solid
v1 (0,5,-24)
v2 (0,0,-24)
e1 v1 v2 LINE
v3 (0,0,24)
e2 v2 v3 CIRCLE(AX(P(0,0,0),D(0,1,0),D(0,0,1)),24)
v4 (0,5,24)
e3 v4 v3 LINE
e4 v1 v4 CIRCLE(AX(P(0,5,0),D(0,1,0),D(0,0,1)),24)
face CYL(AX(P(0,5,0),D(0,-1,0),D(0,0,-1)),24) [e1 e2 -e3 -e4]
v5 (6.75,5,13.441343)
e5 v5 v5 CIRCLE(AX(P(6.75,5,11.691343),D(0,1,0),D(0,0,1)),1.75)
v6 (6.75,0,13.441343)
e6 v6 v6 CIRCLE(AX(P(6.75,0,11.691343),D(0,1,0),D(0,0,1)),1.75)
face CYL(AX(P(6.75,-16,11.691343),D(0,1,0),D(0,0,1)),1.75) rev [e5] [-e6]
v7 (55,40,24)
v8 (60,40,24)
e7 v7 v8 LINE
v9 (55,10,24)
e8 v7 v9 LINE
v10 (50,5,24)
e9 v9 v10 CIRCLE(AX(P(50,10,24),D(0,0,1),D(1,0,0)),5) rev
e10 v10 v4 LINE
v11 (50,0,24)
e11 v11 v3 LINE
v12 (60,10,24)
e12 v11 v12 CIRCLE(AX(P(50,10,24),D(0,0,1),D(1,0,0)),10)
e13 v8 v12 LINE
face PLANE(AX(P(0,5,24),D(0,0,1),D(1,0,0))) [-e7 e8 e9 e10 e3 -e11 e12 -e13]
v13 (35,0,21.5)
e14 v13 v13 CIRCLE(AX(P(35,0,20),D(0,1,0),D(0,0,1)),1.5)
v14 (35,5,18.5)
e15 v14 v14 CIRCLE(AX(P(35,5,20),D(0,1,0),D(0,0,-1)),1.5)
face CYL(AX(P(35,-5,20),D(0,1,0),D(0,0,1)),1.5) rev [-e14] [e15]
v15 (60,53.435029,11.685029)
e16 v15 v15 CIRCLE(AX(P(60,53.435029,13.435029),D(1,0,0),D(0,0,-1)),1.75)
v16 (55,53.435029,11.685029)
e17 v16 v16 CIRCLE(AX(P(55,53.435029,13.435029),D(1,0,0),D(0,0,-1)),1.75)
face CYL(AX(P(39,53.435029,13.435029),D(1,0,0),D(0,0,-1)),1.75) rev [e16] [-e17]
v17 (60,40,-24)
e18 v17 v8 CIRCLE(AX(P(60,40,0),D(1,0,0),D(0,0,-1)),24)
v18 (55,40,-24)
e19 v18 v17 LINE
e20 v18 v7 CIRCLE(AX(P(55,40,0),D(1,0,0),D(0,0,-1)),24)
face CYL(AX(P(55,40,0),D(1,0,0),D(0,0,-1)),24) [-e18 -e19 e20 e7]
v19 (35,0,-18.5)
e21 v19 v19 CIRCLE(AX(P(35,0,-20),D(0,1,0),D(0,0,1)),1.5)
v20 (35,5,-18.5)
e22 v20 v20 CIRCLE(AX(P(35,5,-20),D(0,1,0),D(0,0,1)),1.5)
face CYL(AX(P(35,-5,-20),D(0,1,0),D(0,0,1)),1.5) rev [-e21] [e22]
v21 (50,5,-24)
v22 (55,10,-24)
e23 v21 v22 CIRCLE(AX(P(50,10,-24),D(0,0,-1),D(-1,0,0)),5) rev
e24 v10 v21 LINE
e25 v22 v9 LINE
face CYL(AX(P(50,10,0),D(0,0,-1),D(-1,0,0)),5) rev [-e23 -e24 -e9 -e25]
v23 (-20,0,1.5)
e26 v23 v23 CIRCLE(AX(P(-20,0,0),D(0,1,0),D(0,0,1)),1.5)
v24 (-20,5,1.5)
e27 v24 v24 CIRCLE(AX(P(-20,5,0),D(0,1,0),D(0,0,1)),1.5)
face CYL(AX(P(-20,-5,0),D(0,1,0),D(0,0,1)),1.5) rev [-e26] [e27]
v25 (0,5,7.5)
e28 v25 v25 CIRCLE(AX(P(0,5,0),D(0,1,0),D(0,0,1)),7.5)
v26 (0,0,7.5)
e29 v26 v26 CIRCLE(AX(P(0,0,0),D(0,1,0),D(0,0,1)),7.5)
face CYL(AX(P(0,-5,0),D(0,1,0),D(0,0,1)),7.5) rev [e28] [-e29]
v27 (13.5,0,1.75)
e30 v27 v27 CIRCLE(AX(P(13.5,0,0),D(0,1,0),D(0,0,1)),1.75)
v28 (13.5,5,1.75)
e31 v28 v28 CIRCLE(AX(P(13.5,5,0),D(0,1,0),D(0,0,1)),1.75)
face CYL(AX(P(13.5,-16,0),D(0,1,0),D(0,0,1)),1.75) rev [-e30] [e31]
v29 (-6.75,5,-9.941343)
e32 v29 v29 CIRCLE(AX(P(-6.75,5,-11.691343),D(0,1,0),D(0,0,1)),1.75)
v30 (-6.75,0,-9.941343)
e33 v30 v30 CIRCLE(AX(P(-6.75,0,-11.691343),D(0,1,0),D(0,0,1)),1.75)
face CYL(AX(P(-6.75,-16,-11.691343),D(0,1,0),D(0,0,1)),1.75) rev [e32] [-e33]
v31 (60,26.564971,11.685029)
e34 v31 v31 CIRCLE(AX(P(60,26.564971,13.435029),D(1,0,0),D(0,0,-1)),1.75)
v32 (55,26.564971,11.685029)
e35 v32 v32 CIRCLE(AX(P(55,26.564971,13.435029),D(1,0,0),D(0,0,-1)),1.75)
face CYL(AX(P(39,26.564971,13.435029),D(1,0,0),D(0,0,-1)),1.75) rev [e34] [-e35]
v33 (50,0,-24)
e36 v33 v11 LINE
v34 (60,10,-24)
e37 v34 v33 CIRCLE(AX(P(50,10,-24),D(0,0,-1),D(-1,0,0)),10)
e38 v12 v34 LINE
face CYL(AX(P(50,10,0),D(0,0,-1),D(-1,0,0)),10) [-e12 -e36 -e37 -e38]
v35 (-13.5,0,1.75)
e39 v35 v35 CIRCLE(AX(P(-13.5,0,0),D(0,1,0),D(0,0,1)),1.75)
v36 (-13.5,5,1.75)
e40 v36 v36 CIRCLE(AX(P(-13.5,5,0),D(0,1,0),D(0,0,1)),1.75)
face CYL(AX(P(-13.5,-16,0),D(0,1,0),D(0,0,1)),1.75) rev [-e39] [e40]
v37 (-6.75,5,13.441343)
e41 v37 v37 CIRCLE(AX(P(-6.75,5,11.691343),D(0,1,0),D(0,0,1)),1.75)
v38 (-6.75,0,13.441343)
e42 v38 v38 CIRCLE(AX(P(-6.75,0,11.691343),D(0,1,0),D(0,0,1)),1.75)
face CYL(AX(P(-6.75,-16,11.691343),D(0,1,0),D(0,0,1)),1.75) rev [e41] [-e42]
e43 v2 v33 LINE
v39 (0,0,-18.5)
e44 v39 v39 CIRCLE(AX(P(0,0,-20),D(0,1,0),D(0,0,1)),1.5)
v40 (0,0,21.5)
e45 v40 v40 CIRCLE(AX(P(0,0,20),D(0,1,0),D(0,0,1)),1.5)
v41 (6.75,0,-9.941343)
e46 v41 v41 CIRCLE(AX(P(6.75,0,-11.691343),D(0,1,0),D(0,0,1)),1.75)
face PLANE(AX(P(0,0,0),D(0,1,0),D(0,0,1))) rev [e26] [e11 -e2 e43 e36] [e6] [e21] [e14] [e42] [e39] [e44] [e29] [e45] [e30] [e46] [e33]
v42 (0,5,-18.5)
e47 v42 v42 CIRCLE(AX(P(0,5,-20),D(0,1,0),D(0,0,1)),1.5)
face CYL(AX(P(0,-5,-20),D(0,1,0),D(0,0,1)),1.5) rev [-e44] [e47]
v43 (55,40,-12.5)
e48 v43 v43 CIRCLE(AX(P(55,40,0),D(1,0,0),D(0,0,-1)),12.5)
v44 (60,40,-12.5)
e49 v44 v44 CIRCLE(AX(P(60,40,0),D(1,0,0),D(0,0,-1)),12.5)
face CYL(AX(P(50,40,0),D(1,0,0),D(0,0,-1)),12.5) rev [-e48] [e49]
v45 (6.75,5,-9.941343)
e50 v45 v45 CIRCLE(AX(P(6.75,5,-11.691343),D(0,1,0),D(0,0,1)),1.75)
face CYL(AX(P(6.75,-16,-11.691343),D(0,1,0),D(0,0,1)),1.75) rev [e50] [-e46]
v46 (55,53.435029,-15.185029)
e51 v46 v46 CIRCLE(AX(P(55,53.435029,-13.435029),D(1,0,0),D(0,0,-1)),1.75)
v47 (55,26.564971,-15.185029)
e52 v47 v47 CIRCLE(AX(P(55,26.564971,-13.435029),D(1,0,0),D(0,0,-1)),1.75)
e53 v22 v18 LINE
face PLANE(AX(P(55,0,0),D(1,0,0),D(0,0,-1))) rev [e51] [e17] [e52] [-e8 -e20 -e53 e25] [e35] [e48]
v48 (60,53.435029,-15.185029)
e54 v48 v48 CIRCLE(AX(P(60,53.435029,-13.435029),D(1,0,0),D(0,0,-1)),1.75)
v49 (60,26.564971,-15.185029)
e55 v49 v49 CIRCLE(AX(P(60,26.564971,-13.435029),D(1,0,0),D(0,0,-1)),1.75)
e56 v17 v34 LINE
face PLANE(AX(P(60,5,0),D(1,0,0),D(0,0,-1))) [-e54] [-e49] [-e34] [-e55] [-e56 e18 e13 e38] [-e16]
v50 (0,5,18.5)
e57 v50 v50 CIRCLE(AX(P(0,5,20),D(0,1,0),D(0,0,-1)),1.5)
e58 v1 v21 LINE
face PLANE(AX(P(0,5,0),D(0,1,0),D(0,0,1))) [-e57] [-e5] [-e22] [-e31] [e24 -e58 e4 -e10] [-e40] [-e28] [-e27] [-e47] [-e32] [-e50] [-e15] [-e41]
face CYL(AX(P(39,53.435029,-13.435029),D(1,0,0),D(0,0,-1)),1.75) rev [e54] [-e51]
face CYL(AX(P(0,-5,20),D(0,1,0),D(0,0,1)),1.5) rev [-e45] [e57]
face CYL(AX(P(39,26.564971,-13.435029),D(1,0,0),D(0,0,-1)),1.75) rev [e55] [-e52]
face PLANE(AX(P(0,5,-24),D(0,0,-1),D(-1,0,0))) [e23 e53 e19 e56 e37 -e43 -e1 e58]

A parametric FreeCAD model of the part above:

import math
import FreeCAD as App
import Part
import Sketcher

V = App.Vector
Q = App.Units.Quantity


def edges_at(feature, points):
    """Names of the edges that pass closest to the given points."""
    edges = feature.Shape.Edges
    near = lambda p: min(range(len(edges)), key=lambda i: edges[i].distToShape(Part.Vertex(*p))[0])
    return sorted({f"Edge{near(p) + 1}" for p in points})

doc = App.newDocument("Part")
params = doc.addObject("Spreadsheet::Sheet", "Params")
for row, (alias, value) in enumerate([
    ("sketch1_radius", "24 mm"),
    ("sketch1_width", "60 mm"),
    ("pad1_length", "5 mm"),
    ("sketch2_radius", "24 mm"),
    ("sketch2_width", "40 mm"),
    ("pad2_length", "5 mm"),
    ("sketch3_diameter", "3.5 mm"),
    ("pocket1_length", "21 mm"),
    ("sketch4_diameter", "3.5 mm"),
    ("pocket2_length", "21 mm"),
    ("fillet_radius", "5 mm"),
    ("fillet2_radius", "10 mm"),
    ("sketch5_diameter", "3 mm"),
    ("pocket3_length", "10 mm"),
    ("sketch6_diameter", "15 mm"),
    ("pocket4_length", "10 mm"),
    ("sketch7_diameter", "25 mm"),
    ("pocket5_length", "10 mm"),
], start=1):
    params.set(f"A{row}", alias)
    params.set(f"B{row}", "=" + value)
    params.setAlias(f"B{row}", alias)

body = doc.addObject("PartDesign::Body", "Body")

# Sketch on XZ plane
sketch1 = body.newObject("Sketcher::SketchObject", "Sketch")
sketch1.AttachmentSupport = (doc.getObject("XZ_Plane"), [""])
sketch1.MapMode = "FlatFace"
sketch1.addGeometry([
    Part.ArcOfCircle(Part.Circle(V(0, 0, 0), V(0, 0, 1), 24), math.radians(90), math.radians(270)),
    Part.LineSegment(V(0, 24, 0), V(60, 24, 0)),
    Part.LineSegment(V(60, 24, 0), V(60, -24, 0)),
    Part.LineSegment(V(60, -24, 0), V(0, -24, 0)),
], False)
sketch1.addConstraint([
    Sketcher.Constraint("Tangent", 0, 1, 1, 1),
    Sketcher.Constraint("Coincident", 1, 2, 2, 1),
    Sketcher.Constraint("Coincident", 2, 2, 3, 1),
    Sketcher.Constraint("Tangent", 3, 2, 0, 2),
    Sketcher.Constraint("Horizontal", 1),
    Sketcher.Constraint("Vertical", 2),
    Sketcher.Constraint("Horizontal", 3),
    Sketcher.Constraint("Coincident", 0, 3, -1, 1),
    Sketcher.Constraint("Radius", 0, Q("24 mm")),
    Sketcher.Constraint("DistanceX", 1, 1, 1, 2, Q("60 mm")),
])
sketch1.setExpression("Constraints[8]", "Params.sketch1_radius")
sketch1.setExpression("Constraints[9]", "Params.sketch1_width")
pad1 = body.newObject("PartDesign::Pad", "Pad")
pad1.Profile = sketch1
pad1.setExpression("Length", "Params.pad1_length")
pad1.Reversed = True

# Sketch on YZ plane
sketch2 = body.newObject("Sketcher::SketchObject", "Sketch001")
sketch2.AttachmentSupport = (doc.getObject("YZ_Plane"), [""])
sketch2.MapMode = "FlatFace"
sketch2.AttachmentOffset = App.Placement(V(0, 0, 60), App.Rotation())
sketch2.addGeometry([
    Part.ArcOfCircle(Part.Circle(V(40, 0, 0), V(0, 0, 1), 24), math.radians(-90), math.radians(90)),
    Part.LineSegment(V(40, 24, 0), V(0, 24, 0)),
    Part.LineSegment(V(0, 24, 0), V(0, -24, 0)),
    Part.LineSegment(V(0, -24, 0), V(40, -24, 0)),
], False)
sketch2.addConstraint([
    Sketcher.Constraint("Tangent", 0, 2, 1, 1),
    Sketcher.Constraint("Coincident", 1, 2, 2, 1),
    Sketcher.Constraint("Coincident", 2, 2, 3, 1),
    Sketcher.Constraint("Tangent", 3, 2, 0, 1),
    Sketcher.Constraint("Horizontal", 1),
    Sketcher.Constraint("Vertical", 2),
    Sketcher.Constraint("Horizontal", 3),
    Sketcher.Constraint("Symmetric", 1, 2, 2, 2, -1, 1),
    Sketcher.Constraint("Radius", 0, Q("24 mm")),
    Sketcher.Constraint("DistanceX", 1, 2, 1, 1, Q("40 mm")),
])
sketch2.setExpression("Constraints[8]", "Params.sketch2_radius")
sketch2.setExpression("Constraints[9]", "Params.sketch2_width")
pad2 = body.newObject("PartDesign::Pad", "Pad001")
pad2.Profile = sketch2
pad2.setExpression("Length", "Params.pad2_length")
pad2.Reversed = True

# Sketch on XZ plane
sketch3 = body.newObject("Sketcher::SketchObject", "Sketch002")
sketch3.AttachmentSupport = (doc.getObject("XZ_Plane"), [""])
sketch3.MapMode = "FlatFace"
sketch3.AttachmentOffset = App.Placement(V(0, 0, -5), App.Rotation())
sketch3.addGeometry([
    Part.Circle(V(-13.5, 0, 0), V(0, 0, 1), 1.8),  # 0
    Part.Circle(V(-6.8, -11.7, 0), V(0, 0, 1), 1.8),  # 1
    Part.Circle(V(6.8, -11.7, 0), V(0, 0, 1), 1.8),  # 2
    Part.Circle(V(13.5, 0, 0), V(0, 0, 1), 1.8),  # 3
    Part.Circle(V(6.8, 11.7, 0), V(0, 0, 1), 1.8),  # 4
    Part.Circle(V(-6.8, 11.7, 0), V(0, 0, 1), 1.8),  # 5
], False)
sketch3.addConstraint([
    Sketcher.Constraint("Equal", 0, 1),
    Sketcher.Constraint("Equal", 1, 2),
    Sketcher.Constraint("Equal", 2, 3),
    Sketcher.Constraint("Equal", 3, 4),
    Sketcher.Constraint("Equal", 4, 5),
    Sketcher.Constraint("Symmetric", 0, 3, 3, 3, -1, 1),
    Sketcher.Constraint("Symmetric", 1, 3, 4, 3, -1, 1),
    Sketcher.Constraint("Symmetric", 2, 3, 5, 3, -1, 1),
    Sketcher.Constraint("Symmetric", 1, 3, 2, 3, -2),
    Sketcher.Constraint("PointOnObject", 0, 3, -1),
    Sketcher.Constraint("Diameter", 0, Q("3.5 mm")),
    Sketcher.Constraint("DistanceX", 0, 3, 3, 3, Q("27 mm")),
    Sketcher.Constraint("DistanceX", 1, 3, 2, 3, Q("13.5 mm")),
    Sketcher.Constraint("DistanceY", 1, 3, -1, 1, Q("11.691343 mm")),
])
sketch3.setExpression("Constraints[10]", "Params.sketch3_diameter")
pocket1 = body.newObject("PartDesign::Pocket", "Pocket")
pocket1.Profile = sketch3
pocket1.setExpression("Length", "Params.pocket1_length")
pocket1.Reversed = True

# Sketch on YZ plane
sketch4 = body.newObject("Sketcher::SketchObject", "Sketch003")
sketch4.AttachmentSupport = (doc.getObject("YZ_Plane"), [""])
sketch4.MapMode = "FlatFace"
sketch4.AttachmentOffset = App.Placement(V(0, 0, 60), App.Rotation())
sketch4.addGeometry([
    Part.Circle(V(53.4, 13.4, 0), V(0, 0, 1), 1.8),
    Part.Circle(V(53.4, -13.4, 0), V(0, 0, 1), 1.8),
    Part.Circle(V(26.6, -13.4, 0), V(0, 0, 1), 1.8),
    Part.Circle(V(26.6, 13.4, 0), V(0, 0, 1), 1.8),
], False)
sketch4.addConstraint([
    Sketcher.Constraint("Equal", 0, 1),
    Sketcher.Constraint("Equal", 1, 2),
    Sketcher.Constraint("Equal", 2, 3),
    Sketcher.Constraint("Symmetric", 0, 3, 1, 3, -1),
    Sketcher.Constraint("Symmetric", 2, 3, 3, 3, -1),
    Sketcher.Constraint("Horizontal", 1, 3, 2, 3),
    Sketcher.Constraint("Diameter", 0, Q("3.5 mm")),
    Sketcher.Constraint("DistanceX", -1, 1, 0, 3, Q("53.435029 mm")),
    Sketcher.Constraint("DistanceY", -1, 1, 0, 3, Q("13.435029 mm")),
    Sketcher.Constraint("DistanceX", -1, 1, 2, 3, Q("26.564971 mm")),
])
sketch4.setExpression("Constraints[6]", "Params.sketch4_diameter")
pocket2 = body.newObject("PartDesign::Pocket", "Pocket001")
pocket2.Profile = sketch4
pocket2.setExpression("Length", "Params.pocket2_length")
doc.recompute()

fillet = body.newObject("PartDesign::Fillet", "Fillet")
fillet.Base = (pocket2, edges_at(pocket2, [(55, 5, 0)]))
fillet.setExpression("Radius", "Params.fillet_radius")
doc.recompute()

fillet2 = body.newObject("PartDesign::Fillet", "Fillet001")
fillet2.Base = (fillet, edges_at(fillet, [(60, 0, 0)]))
fillet2.setExpression("Radius", "Params.fillet2_radius")

# Sketch on XZ plane
sketch5 = body.newObject("Sketcher::SketchObject", "Sketch004")
sketch5.AttachmentSupport = (doc.getObject("XZ_Plane"), [""])
sketch5.MapMode = "FlatFace"
sketch5.AttachmentOffset = App.Placement(V(0, 0, -5), App.Rotation())
sketch5.addGeometry([
    Part.Circle(V(0, -20, 0), V(0, 0, 1), 1.5),  # 0
    Part.Circle(V(35, -20, 0), V(0, 0, 1), 1.5),  # 1
    Part.Circle(V(35, 20, 0), V(0, 0, 1), 1.5),  # 2
    Part.Circle(V(0, 20, 0), V(0, 0, 1), 1.5),  # 3
    Part.Circle(V(-20, 0, 0), V(0, 0, 1), 1.5),  # 4
], False)
sketch5.addConstraint([
    Sketcher.Constraint("Equal", 0, 1),
    Sketcher.Constraint("Equal", 1, 2),
    Sketcher.Constraint("Equal", 2, 3),
    Sketcher.Constraint("Equal", 3, 4),
    Sketcher.Constraint("Symmetric", 0, 3, 3, 3, -1, 1),
    Sketcher.Constraint("Symmetric", 1, 3, 2, 3, -1),
    Sketcher.Constraint("PointOnObject", 0, 3, -2),
    Sketcher.Constraint("PointOnObject", 4, 3, -1),
    Sketcher.Constraint("Horizontal", 0, 3, 1, 3),
    Sketcher.Constraint("Diameter", 0, Q("3 mm")),
    Sketcher.Constraint("DistanceY", 0, 3, -1, 1, Q("20 mm")),
    Sketcher.Constraint("DistanceX", -1, 1, 1, 3, Q("35 mm")),
    Sketcher.Constraint("DistanceX", 4, 3, -1, 1, Q("20 mm")),
])
sketch5.setExpression("Constraints[9]", "Params.sketch5_diameter")
pocket3 = body.newObject("PartDesign::Pocket", "Pocket002")
pocket3.Profile = sketch5
pocket3.setExpression("Length", "Params.pocket3_length")
pocket3.Reversed = True

# Sketch on XZ plane
sketch6 = body.newObject("Sketcher::SketchObject", "Sketch005")
sketch6.AttachmentSupport = (doc.getObject("XZ_Plane"), [""])
sketch6.MapMode = "FlatFace"
sketch6.AttachmentOffset = App.Placement(V(0, 0, -5), App.Rotation())
sketch6.addGeometry(Part.Circle(V(0, 0, 0), V(0, 0, 1), 8), False)
sketch6.addConstraint([
    Sketcher.Constraint("Coincident", 0, 3, -1, 1),
    Sketcher.Constraint("Diameter", 0, Q("15 mm")),
])
sketch6.setExpression("Constraints[1]", "Params.sketch6_diameter")
pocket4 = body.newObject("PartDesign::Pocket", "Pocket003")
pocket4.Profile = sketch6
pocket4.setExpression("Length", "Params.pocket4_length")
pocket4.Reversed = True

# Sketch on YZ plane
sketch7 = body.newObject("Sketcher::SketchObject", "Sketch006")
sketch7.AttachmentSupport = (doc.getObject("YZ_Plane"), [""])
sketch7.MapMode = "FlatFace"
sketch7.AttachmentOffset = App.Placement(V(0, 0, 60), App.Rotation())
sketch7.addGeometry(Part.Circle(V(40, 0, 0), V(0, 0, 1), 12), False)
sketch7.addConstraint([
    Sketcher.Constraint("PointOnObject", 0, 3, -1),
    Sketcher.Constraint("Diameter", 0, Q("25 mm")),
    Sketcher.Constraint("DistanceX", -1, 1, 0, 3, Q("40 mm")),
])
sketch7.setExpression("Constraints[1]", "Params.sketch7_diameter")
pocket5 = body.newObject("PartDesign::Pocket", "Pocket004")
pocket5.Profile = sketch7
pocket5.setExpression("Length", "Params.pocket5_length")

doc.recompute()
